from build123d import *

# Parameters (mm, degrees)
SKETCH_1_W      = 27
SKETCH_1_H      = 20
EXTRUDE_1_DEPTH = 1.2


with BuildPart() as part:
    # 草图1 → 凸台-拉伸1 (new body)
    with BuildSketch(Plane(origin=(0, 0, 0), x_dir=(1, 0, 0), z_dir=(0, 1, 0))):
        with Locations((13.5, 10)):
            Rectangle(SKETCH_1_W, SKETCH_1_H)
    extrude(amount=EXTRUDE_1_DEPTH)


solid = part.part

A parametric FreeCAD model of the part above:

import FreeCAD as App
import Part
import Sketcher
Q = App.Units.Quantity


def add_polygon(sketch, points):
    """Adds a closed chain of lines whose ends are joined by coincident constraints."""
    first, n = sketch.GeometryCount, len(points)
    for a, b in zip(points, points[1:] + points[:1]):
        sketch.addGeometry(Part.LineSegment(App.Vector(*a, 0), App.Vector(*b, 0)), False)
    for i in range(n):
        sketch.addConstraint(Sketcher.Constraint("Coincident", first + i, 2, first + (i + 1) % n, 1))

doc = App.newDocument("Part")
body = doc.addObject("PartDesign::Body", "Body")

sketch1 = body.newObject("Sketcher::SketchObject", "Sketch")
sketch1.AttachmentSupport = (doc.getObject("XZ_Plane"), [""])
sketch1.MapMode = "FlatFace"
add_polygon(sketch1, [(0, -20), (0, 0), (27, 0), (27, -20)])
sketch1.addConstraint([
    Sketcher.Constraint("Vertical", 0),
    Sketcher.Constraint("Horizontal", 1),
    Sketcher.Constraint("Vertical", 2),
    Sketcher.Constraint("Horizontal", 3),
    Sketcher.Constraint("Coincident", 0, 2, -1, 1),
    Sketcher.Constraint("DistanceX", 1, 1, 1, 2, Q("27 mm")),
    Sketcher.Constraint("DistanceY", 0, 1, 0, 2, Q("20 mm")),
])
pad1 = body.newObject("PartDesign::Pad", "Pad")
pad1.Profile = sketch1
pad1.Length = 1.2
pad1.Reversed = True

doc.recompute()
